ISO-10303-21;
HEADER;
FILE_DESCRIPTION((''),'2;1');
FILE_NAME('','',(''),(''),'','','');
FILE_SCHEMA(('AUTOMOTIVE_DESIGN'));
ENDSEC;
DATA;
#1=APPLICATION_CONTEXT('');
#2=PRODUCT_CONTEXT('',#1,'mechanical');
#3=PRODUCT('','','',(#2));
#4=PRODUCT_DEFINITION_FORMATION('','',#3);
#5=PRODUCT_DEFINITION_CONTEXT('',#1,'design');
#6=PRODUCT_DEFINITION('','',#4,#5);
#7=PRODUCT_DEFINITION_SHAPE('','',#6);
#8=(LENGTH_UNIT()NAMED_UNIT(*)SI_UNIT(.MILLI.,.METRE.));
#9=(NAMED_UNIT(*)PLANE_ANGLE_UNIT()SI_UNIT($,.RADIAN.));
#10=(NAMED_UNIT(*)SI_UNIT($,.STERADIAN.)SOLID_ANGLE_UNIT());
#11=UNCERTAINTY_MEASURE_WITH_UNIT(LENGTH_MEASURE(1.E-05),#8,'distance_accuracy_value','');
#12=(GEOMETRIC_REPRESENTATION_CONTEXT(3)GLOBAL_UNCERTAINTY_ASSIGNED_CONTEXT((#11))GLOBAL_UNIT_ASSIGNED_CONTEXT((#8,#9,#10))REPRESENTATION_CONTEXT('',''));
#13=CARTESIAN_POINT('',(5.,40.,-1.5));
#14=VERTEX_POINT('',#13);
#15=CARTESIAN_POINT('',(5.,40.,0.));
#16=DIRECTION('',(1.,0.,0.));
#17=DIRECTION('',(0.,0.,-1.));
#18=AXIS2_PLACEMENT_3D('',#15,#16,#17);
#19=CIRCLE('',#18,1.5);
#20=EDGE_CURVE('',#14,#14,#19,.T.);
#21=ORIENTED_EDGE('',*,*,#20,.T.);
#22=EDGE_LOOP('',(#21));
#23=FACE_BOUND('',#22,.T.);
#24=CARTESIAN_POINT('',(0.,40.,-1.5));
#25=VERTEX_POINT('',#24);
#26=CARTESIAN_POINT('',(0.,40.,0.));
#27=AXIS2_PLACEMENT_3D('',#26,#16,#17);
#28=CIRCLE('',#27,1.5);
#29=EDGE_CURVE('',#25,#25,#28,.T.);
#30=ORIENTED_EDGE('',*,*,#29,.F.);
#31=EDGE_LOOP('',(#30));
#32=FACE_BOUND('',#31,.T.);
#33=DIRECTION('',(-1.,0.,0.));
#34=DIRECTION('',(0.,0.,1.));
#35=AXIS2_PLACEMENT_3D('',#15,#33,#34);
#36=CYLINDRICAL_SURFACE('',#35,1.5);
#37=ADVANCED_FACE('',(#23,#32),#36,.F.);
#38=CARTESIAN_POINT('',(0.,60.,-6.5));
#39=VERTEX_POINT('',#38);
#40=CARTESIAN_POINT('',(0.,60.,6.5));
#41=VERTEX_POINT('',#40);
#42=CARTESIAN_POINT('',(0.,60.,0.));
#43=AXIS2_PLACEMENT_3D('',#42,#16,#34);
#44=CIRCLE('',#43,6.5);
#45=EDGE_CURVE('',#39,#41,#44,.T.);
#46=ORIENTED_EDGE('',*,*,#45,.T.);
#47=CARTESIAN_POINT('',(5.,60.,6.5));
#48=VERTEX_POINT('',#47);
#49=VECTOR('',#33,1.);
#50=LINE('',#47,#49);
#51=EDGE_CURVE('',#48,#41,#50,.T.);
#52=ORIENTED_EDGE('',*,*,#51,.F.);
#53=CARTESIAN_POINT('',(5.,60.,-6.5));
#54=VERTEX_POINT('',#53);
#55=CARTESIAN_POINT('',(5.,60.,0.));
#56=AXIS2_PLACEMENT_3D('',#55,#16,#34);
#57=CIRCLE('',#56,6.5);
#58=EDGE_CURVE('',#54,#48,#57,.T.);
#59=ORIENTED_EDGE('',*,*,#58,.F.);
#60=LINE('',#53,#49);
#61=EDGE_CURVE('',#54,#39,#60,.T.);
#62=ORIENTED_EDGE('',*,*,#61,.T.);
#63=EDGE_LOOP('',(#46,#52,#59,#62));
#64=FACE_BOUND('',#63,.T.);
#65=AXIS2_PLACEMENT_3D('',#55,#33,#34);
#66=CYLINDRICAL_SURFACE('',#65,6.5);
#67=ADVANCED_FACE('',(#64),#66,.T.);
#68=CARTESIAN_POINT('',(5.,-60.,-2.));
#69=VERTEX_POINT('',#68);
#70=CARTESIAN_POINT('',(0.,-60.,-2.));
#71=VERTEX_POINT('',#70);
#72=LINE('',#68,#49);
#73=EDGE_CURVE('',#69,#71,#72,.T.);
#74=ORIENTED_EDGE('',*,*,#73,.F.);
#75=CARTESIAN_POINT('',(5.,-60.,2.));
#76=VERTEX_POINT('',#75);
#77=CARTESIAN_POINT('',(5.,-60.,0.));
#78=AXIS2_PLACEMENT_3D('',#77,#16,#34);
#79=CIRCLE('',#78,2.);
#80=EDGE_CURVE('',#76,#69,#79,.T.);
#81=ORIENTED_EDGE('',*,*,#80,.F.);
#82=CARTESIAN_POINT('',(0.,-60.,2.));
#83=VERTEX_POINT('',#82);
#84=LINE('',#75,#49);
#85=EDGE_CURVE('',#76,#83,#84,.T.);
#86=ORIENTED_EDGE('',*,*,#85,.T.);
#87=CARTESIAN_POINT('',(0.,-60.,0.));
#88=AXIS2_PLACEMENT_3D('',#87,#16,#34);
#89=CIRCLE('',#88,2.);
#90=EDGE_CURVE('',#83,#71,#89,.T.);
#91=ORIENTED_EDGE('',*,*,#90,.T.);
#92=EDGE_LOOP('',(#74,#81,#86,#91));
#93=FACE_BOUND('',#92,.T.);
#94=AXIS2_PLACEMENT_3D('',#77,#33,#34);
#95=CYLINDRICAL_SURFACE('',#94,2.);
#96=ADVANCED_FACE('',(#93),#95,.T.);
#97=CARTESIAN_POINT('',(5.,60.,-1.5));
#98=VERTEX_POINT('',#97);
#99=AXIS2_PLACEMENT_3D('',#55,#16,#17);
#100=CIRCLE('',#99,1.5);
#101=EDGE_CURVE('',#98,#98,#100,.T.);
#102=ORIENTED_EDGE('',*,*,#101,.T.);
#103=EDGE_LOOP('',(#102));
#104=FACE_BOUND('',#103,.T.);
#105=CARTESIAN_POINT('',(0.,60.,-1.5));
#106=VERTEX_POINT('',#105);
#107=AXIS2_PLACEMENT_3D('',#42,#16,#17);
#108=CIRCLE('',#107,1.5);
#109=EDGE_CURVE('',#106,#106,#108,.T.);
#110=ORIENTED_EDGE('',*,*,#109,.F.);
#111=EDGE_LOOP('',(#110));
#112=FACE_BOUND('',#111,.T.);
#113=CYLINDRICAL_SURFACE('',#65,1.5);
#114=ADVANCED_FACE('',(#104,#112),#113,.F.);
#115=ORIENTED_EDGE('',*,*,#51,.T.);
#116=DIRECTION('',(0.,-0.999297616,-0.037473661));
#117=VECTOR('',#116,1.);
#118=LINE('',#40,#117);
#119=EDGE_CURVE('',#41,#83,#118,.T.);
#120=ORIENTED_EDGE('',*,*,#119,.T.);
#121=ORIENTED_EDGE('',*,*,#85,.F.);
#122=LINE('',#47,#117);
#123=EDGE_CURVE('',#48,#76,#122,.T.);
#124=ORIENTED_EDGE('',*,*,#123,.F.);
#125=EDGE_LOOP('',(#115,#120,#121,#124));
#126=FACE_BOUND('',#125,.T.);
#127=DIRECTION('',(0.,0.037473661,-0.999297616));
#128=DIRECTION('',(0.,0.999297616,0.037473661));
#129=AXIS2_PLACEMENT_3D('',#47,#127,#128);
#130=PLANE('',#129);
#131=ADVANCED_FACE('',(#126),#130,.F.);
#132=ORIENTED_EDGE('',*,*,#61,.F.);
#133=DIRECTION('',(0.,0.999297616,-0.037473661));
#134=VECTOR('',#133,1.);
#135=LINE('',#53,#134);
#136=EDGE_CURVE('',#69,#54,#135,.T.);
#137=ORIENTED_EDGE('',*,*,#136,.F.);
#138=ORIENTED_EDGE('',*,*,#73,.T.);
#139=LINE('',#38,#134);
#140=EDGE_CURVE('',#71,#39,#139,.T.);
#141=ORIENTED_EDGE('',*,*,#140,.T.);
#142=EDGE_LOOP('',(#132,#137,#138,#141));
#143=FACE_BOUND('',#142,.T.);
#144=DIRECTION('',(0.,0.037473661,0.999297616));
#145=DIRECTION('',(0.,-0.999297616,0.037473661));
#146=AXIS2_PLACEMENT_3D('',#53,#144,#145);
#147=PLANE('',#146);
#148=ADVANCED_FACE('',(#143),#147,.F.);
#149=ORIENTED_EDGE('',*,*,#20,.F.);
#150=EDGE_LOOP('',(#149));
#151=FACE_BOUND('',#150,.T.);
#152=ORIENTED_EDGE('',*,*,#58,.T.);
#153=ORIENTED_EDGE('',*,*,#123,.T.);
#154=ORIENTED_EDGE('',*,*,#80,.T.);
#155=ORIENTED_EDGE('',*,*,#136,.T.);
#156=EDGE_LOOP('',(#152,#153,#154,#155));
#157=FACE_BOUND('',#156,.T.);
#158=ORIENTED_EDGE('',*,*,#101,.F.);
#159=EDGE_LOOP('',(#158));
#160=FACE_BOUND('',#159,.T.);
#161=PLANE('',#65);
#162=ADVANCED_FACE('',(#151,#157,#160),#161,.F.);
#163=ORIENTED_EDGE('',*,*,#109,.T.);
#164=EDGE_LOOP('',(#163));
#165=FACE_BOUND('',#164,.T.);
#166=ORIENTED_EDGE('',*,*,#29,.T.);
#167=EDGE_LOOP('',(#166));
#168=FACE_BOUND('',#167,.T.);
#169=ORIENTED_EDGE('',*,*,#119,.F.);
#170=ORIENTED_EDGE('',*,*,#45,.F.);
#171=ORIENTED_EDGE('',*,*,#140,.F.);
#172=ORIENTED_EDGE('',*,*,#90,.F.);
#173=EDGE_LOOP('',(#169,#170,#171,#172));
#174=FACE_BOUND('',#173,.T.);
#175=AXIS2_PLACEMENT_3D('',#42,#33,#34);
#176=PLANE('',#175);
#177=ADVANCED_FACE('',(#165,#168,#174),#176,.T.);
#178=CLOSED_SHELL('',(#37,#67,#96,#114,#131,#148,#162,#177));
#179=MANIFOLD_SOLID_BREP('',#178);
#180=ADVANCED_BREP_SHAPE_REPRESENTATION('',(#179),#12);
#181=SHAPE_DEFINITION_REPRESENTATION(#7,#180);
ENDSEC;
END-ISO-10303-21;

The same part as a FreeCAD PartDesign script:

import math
import FreeCAD as App
import Part
import Sketcher

doc = App.newDocument("Part")
body = doc.addObject("PartDesign::Body", "Body")

sketch1 = doc.addObject("Sketcher::SketchObject", "Sketch")
body.addObject(sketch1)
sketch1.AttachmentSupport = (doc.YZ_Plane, [""])
sketch1.MapMode = "FlatFace"
sketch1.addGeometry(Part.LineSegment(App.Vector(60, 6.5, 0), App.Vector(-60, 2, 0)), False)
sketch1.addGeometry(Part.ArcOfCircle(Part.Circle(App.Vector(-60, 0, 0), App.Vector(0, 0, 1), 2), math.radians(90), math.radians(270)), False)
sketch1.addGeometry(Part.LineSegment(App.Vector(-60, -2, 0), App.Vector(60, -6.5, 0)), False)
sketch1.addGeometry(Part.ArcOfCircle(Part.Circle(App.Vector(60, 0, 0), App.Vector(0, 0, 1), 6.5), math.radians(-90), math.radians(90)), False)
sketch1.addGeometry(Part.Circle(App.Vector(40, 0, 0), App.Vector(0, 0, 1), 1.5), False)
sketch1.addGeometry(Part.Circle(App.Vector(60, 0, 0), App.Vector(0, 0, 1), 1.5), False)
sketch1.addConstraint(Sketcher.Constraint("Coincident", 0, 2, 1, 1))
sketch1.addConstraint(Sketcher.Constraint("Coincident", 1, 2, 2, 1))
sketch1.addConstraint(Sketcher.Constraint("Coincident", 2, 2, 3, 1))
sketch1.addConstraint(Sketcher.Constraint("Coincident", 3, 2, 0, 1))
sketch1.addConstraint(Sketcher.Constraint("Coincident", 5, 3, 3, 3))
sketch1.addConstraint(Sketcher.Constraint("Equal", 4, 5))
sketch1.addConstraint(Sketcher.Constraint("Symmetric", 1, 3, 3, 3, -1, 1))
sketch1.addConstraint(Sketcher.Constraint("Symmetric", 0, 2, 1, 2, -1))
sketch1.addConstraint(Sketcher.Constraint("PointOnObject", 4, 3, -1))
sketch1.addConstraint(Sketcher.Constraint("Vertical", 1, 3, 0, 2))
sketch1.addConstraint(Sketcher.Constraint("Vertical", 5, 3, 2, 2))
sketch1.addConstraint(Sketcher.Constraint("Vertical", 2, 2, 3, 2))
sketch1.addConstraint(Sketcher.Constraint("Diameter", 4, 3.0))
sketch1.addConstraint(Sketcher.Constraint("Radius", 1, 2.0))
sketch1.addConstraint(Sketcher.Constraint("Radius", 3, 6.5))
sketch1.addConstraint(Sketcher.Constraint("DistanceX", 1, 3, -1, 1, 60.0))
sketch1.addConstraint(Sketcher.Constraint("DistanceX", -1, 1, 4, 3, 40.0))
pad1 = doc.addObject("PartDesign::Pad", "Pad")
body.addObject(pad1)
pad1.Profile = sketch1
pad1.Length = 5

doc.recompute()
